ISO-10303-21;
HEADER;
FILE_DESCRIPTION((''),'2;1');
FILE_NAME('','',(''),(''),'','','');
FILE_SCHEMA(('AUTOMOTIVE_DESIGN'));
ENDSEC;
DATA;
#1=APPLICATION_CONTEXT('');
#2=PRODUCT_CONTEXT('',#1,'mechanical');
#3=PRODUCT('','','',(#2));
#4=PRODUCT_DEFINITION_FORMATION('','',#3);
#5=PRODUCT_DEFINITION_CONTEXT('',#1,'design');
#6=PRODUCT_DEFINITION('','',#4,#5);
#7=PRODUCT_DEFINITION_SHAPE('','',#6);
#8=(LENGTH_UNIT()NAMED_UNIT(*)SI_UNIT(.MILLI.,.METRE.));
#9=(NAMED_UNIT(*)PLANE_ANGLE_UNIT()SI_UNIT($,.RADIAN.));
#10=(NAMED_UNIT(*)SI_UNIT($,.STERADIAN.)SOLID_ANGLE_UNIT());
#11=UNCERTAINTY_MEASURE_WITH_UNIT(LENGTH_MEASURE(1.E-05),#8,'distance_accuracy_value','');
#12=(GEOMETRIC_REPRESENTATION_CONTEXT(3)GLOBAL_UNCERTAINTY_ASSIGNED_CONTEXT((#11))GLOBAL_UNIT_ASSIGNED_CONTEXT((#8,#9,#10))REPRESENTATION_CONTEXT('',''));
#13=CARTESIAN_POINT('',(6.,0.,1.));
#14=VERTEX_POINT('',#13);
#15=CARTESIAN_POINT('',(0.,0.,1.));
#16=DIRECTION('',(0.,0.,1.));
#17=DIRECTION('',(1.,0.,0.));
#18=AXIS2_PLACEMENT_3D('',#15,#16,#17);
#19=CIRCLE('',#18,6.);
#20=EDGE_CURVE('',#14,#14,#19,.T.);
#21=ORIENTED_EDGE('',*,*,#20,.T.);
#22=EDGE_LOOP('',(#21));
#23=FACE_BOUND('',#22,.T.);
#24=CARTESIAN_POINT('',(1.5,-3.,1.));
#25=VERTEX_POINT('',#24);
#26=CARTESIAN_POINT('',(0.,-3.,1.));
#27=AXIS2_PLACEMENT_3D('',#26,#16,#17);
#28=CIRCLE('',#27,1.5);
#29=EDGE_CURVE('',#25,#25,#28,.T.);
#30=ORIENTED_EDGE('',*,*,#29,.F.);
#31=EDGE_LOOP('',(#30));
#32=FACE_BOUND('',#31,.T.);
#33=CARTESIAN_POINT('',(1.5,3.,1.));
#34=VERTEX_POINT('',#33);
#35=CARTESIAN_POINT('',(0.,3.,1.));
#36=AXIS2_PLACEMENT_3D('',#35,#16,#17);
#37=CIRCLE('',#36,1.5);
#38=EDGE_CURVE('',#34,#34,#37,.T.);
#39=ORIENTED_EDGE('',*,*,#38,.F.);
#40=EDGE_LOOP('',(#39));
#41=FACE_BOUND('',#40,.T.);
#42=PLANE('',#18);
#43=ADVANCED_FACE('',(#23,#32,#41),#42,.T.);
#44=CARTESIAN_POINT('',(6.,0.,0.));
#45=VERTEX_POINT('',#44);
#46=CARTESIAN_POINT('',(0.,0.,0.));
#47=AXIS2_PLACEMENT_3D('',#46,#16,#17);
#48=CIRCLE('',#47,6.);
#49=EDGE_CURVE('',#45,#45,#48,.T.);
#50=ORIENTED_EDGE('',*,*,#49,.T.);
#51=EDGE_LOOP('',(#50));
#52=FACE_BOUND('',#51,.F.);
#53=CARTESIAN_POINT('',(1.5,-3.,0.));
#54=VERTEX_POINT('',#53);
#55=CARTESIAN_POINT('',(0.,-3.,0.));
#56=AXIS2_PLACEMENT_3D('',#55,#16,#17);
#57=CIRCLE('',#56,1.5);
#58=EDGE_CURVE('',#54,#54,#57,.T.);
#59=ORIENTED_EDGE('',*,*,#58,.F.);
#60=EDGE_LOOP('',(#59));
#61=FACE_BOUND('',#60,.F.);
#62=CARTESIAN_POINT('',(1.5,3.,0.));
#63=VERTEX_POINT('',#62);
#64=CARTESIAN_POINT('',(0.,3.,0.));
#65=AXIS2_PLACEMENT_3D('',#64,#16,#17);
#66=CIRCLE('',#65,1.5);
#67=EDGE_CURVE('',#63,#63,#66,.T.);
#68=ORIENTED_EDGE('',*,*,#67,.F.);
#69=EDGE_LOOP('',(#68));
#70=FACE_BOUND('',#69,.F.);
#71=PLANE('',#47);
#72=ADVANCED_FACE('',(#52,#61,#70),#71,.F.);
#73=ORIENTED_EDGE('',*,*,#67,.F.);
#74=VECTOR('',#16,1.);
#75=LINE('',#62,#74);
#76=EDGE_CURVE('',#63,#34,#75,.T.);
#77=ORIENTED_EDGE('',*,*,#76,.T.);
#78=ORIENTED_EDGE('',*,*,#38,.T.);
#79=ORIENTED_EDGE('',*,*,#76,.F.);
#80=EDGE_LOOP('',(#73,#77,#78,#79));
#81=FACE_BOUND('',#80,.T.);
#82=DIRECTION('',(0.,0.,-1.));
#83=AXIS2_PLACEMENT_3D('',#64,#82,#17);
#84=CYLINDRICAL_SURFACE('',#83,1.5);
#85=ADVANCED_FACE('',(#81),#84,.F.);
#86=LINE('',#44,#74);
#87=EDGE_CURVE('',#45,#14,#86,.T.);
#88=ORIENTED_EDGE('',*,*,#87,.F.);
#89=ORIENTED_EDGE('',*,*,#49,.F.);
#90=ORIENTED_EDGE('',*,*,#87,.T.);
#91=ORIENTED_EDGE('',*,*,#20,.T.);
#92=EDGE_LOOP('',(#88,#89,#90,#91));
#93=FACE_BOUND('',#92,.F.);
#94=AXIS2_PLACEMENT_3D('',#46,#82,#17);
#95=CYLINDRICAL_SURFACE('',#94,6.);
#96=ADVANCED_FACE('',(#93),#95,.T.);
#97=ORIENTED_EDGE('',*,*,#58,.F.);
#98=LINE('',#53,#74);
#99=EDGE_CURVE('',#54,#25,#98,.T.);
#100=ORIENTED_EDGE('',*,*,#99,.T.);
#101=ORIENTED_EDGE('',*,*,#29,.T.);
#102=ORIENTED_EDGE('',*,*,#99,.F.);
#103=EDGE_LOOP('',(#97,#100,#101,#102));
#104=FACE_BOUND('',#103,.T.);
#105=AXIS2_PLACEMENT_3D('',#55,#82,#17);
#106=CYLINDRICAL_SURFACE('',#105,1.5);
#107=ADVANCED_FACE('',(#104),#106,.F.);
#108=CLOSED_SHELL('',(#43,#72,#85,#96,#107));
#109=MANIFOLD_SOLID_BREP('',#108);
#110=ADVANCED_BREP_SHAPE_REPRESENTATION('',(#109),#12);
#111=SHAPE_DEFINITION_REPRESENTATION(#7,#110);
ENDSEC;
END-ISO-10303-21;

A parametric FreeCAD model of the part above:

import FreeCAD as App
import Part
import Sketcher
Q = App.Units.Quantity

doc = App.newDocument("Part")
body = doc.addObject("PartDesign::Body", "Body")

# Sketch on XY plane
sketch1 = doc.addObject("Sketcher::SketchObject", "Sketch")
body.addObject(sketch1)
sketch1.AttachmentSupport = (doc.XY_Plane, [""])
sketch1.MapMode = "FlatFace"
sketch1.addGeometry([
    Part.Circle(App.Vector(0, 0, 0), App.Vector(0, 0, 1), 6),
    Part.Circle(App.Vector(0, -3, 0), App.Vector(0, 0, 1), 1.5),
    Part.Circle(App.Vector(0, 3, 0), App.Vector(0, 0, 1), 1.5),
], False)
sketch1.addConstraint([
    Sketcher.Constraint("Coincident", 0, 3, -1, 1),
    Sketcher.Constraint("Equal", 1, 2),
    Sketcher.Constraint("Symmetric", 1, 3, 2, 3, -1, 1),
    Sketcher.Constraint("PointOnObject", 1, 3, -2),
    Sketcher.Constraint("Diameter", 0, Q("12 mm")),
    Sketcher.Constraint("Diameter", 1, Q("3 mm")),
    Sketcher.Constraint("DistanceY", 1, 3, -1, 1, Q("3 mm")),
])
pad1 = doc.addObject("PartDesign::Pad", "Pad")
body.addObject(pad1)
pad1.Profile = sketch1
pad1.Length = 1

doc.recompute()
